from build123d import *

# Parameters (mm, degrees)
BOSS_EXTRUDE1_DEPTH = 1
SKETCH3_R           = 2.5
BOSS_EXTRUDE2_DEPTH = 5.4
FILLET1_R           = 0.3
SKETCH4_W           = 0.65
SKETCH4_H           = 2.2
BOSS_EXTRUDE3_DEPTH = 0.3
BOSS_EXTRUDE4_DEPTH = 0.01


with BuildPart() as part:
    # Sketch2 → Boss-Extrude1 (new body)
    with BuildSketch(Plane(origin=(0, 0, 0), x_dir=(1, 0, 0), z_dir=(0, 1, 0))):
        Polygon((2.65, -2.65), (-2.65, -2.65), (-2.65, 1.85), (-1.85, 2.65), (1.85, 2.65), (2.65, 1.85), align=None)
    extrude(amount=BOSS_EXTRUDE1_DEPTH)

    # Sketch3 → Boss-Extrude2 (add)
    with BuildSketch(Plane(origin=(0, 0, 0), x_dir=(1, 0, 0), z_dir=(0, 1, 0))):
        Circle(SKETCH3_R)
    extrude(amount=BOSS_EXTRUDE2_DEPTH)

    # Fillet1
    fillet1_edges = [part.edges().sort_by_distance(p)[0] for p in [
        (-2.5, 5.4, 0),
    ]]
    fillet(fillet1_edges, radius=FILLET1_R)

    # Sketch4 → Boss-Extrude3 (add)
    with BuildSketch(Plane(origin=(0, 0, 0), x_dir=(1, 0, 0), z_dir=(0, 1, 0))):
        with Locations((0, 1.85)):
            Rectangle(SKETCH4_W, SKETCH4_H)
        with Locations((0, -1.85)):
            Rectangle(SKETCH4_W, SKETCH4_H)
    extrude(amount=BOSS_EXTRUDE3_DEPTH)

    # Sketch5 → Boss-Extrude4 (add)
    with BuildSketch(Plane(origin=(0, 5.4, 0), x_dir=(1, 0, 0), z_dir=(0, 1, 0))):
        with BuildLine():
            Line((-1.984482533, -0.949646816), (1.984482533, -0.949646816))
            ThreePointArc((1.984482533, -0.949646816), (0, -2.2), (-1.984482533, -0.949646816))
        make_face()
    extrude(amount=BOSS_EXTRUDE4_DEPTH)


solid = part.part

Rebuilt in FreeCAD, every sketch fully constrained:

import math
import FreeCAD as App
import Part
import Sketcher
Q = App.Units.Quantity


def edges_at(feature, points):
    """Names of the edges that pass closest to the given points."""
    edges = feature.Shape.Edges
    near = lambda p: min(range(len(edges)), key=lambda i: edges[i].distToShape(Part.Vertex(*p))[0])
    return sorted({f"Edge{near(p) + 1}" for p in points})


def add_polygon(sketch, points):
    """Adds a closed chain of lines whose ends are joined by coincident constraints."""
    first, n = sketch.GeometryCount, len(points)
    for a, b in zip(points, points[1:] + points[:1]):
        sketch.addGeometry(Part.LineSegment(App.Vector(*a, 0), App.Vector(*b, 0)), False)
    for i in range(n):
        sketch.addConstraint(Sketcher.Constraint("Coincident", first + i, 2, first + (i + 1) % n, 1))

doc = App.newDocument("Part")
params = doc.addObject("Spreadsheet::Sheet", "Params")
for row, (alias, value) in enumerate([
    ("sketch1_width", "5.3 mm"),
    ("sketch1_width2", "3.7 mm"),
    ("sketch1_height", "4.5 mm"),
    ("pad1_length", "1 mm"),
    ("sketch2_diameter", "5 mm"),
    ("pad2_length", "5.4 mm"),
    ("fillet_radius", "0.3 mm"),
    ("sketch3_height", "2.2 mm"),
    ("sketch3_width", "0.65 mm"),
    ("pad3_length", "0.3 mm"),
    ("sketch4_radius", "2.2 mm"),
    ("pad4_length", "0.01 mm"),
], start=1):
    params.set(f"A{row}", alias)
    params.set(f"B{row}", "=" + value)
    params.setAlias(f"B{row}", alias)

body = doc.addObject("PartDesign::Body", "Body")

# Sketch on XZ plane
sketch1 = body.newObject("Sketcher::SketchObject", "Sketch")
sketch1.AttachmentSupport = (doc.getObject("XZ_Plane"), [""])
sketch1.MapMode = "FlatFace"
add_polygon(sketch1, [(-2.6, 2.6), (2.6, 2.6), (2.6, -1.9), (1.9, -2.6), (-1.9, -2.6), (-2.6, -1.9)])  # lines 0-5
sketch1.addConstraint([
    Sketcher.Constraint("Horizontal", 0),
    Sketcher.Constraint("Vertical", 1),
    Sketcher.Constraint("Horizontal", 3),
    Sketcher.Constraint("Vertical", 5),
    Sketcher.Constraint("Symmetric", 1, 2, 4, 2, -2),
    Sketcher.Constraint("Perpendicular", 2, 4),
    Sketcher.Constraint("Equal", 2, 4),
    Sketcher.Constraint("DistanceX", 0, 1, 0, 2, Q("5.3 mm")),
    Sketcher.Constraint("DistanceX", 3, 2, 3, 1, Q("3.7 mm")),
    Sketcher.Constraint("DistanceY", 1, 2, 1, 1, Q("4.5 mm")),
    Sketcher.Constraint("DistanceY", -1, 1, 0, 2, Q("2.65 mm")),
])
sketch1.setExpression("Constraints[13]", "Params.sketch1_width")
sketch1.setExpression("Constraints[14]", "Params.sketch1_width2")
sketch1.setExpression("Constraints[15]", "Params.sketch1_height")
pad1 = body.newObject("PartDesign::Pad", "Pad")
pad1.Profile = sketch1
pad1.setExpression("Length", "Params.pad1_length")
pad1.Reversed = True

# Sketch on XZ plane
sketch2 = body.newObject("Sketcher::SketchObject", "Sketch001")
sketch2.AttachmentSupport = (doc.getObject("XZ_Plane"), [""])
sketch2.MapMode = "FlatFace"
sketch2.addGeometry(Part.Circle(App.Vector(0, 0, 0), App.Vector(0, 0, 1), 2.5), False)
sketch2.addConstraint([
    Sketcher.Constraint("Coincident", 0, 3, -1, 1),
    Sketcher.Constraint("Diameter", 0, Q("5 mm")),
])
sketch2.setExpression("Constraints[1]", "Params.sketch2_diameter")
pad2 = body.newObject("PartDesign::Pad", "Pad001")
pad2.Profile = sketch2
pad2.setExpression("Length", "Params.pad2_length")
pad2.Reversed = True
doc.recompute()

fillet = body.newObject("PartDesign::Fillet", "Fillet")
fillet.Base = (pad2, edges_at(pad2, [(-2.5, 5.4, 0)]))
fillet.setExpression("Radius", "Params.fillet_radius")

# Sketch on XZ plane
sketch3 = body.newObject("Sketcher::SketchObject", "Sketch002")
sketch3.AttachmentSupport = (doc.getObject("XZ_Plane"), [""])
sketch3.MapMode = "FlatFace"
add_polygon(sketch3, [(-0.3, -3), (-0.3, -0.8), (0.3, -0.8), (0.3, -3)])  # lines 0-3
add_polygon(sketch3, [(-0.3, 0.8), (-0.3, 3), (0.3, 3), (0.3, 0.8)])  # lines 4-7
sketch3.addConstraint([
    Sketcher.Constraint("Vertical", 0),
    Sketcher.Constraint("Horizontal", 1),
    Sketcher.Constraint("Vertical", 2),
    Sketcher.Constraint("Horizontal", 3),
    Sketcher.Constraint("Vertical", 4),
    Sketcher.Constraint("Horizontal", 5),
    Sketcher.Constraint("Vertical", 6),
    Sketcher.Constraint("Horizontal", 7),
    Sketcher.Constraint("Symmetric", 2, 2, 4, 2, -1, 1),
    Sketcher.Constraint("Symmetric", 0, 2, 6, 2, -1, 1),
    Sketcher.Constraint("Vertical", 3, 2, 4, 2),
    Sketcher.Constraint("DistanceY", 0, 1, 0, 2, Q("2.2 mm")),
    Sketcher.Constraint("DistanceX", 1, 1, 1, 2, Q("0.65 mm")),
    Sketcher.Constraint("DistanceY", 0, 2, 4, 2, Q("3.7 mm")),
])
sketch3.setExpression("Constraints[19]", "Params.sketch3_height")
sketch3.setExpression("Constraints[20]", "Params.sketch3_width")
pad3 = body.newObject("PartDesign::Pad", "Pad002")
pad3.Profile = sketch3
pad3.setExpression("Length", "Params.pad3_length")
pad3.Reversed = True

# Sketch on XZ plane
sketch4 = body.newObject("Sketcher::SketchObject", "Sketch003")
sketch4.AttachmentSupport = (doc.getObject("XZ_Plane"), [""])
sketch4.MapMode = "FlatFace"
sketch4.AttachmentOffset = App.Placement(App.Vector(0, 0, -5.4), App.Rotation())
sketch4.addGeometry([
    Part.LineSegment(App.Vector(2, 0.9, 0), App.Vector(-2, 0.9, 0)),
    Part.ArcOfCircle(Part.Circle(App.Vector(0, 0, 0), App.Vector(0, 0, 1), 2.2), math.radians(26), math.radians(154)),
], False)
sketch4.addConstraint([
    Sketcher.Constraint("Coincident", 0, 1, 1, 1),
    Sketcher.Constraint("Coincident", 1, 2, 0, 2),
    Sketcher.Constraint("Horizontal", 0),
    Sketcher.Constraint("Coincident", 1, 3, -1, 1),
    Sketcher.Constraint("Radius", 1, Q("2.2 mm")),
    Sketcher.Constraint("DistanceX", 0, 2, 0, 1, Q("3.968965 mm")),
])
sketch4.setExpression("Constraints[4]", "Params.sketch4_radius")
pad4 = body.newObject("PartDesign::Pad", "Pad003")
pad4.Profile = sketch4
pad4.setExpression("Length", "Params.pad4_length")
pad4.Reversed = True

doc.recompute()
